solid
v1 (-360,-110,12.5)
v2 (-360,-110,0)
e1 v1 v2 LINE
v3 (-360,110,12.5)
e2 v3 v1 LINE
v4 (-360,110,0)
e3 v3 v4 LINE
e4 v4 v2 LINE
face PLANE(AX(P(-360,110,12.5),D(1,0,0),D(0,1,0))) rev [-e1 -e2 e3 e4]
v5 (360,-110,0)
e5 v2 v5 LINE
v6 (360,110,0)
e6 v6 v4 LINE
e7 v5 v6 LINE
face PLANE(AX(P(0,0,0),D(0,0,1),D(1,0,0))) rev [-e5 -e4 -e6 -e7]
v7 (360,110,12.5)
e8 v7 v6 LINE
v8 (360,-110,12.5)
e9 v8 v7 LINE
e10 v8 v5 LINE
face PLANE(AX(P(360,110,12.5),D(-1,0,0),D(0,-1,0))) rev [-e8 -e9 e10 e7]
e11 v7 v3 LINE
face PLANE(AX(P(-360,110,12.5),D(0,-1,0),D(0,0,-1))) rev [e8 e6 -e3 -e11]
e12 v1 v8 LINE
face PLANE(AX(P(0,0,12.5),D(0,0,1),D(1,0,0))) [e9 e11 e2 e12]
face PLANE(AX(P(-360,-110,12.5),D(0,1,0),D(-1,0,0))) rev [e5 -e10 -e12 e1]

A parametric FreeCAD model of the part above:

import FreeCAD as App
import Part
import Sketcher

V = App.Vector
Q = App.Units.Quantity


def add_polygon(sketch, points):
    """Adds a closed chain of lines whose ends are joined by coincident constraints."""
    first, n = sketch.GeometryCount, len(points)
    for a, b in zip(points, points[1:] + points[:1]):
        sketch.addGeometry(Part.LineSegment(App.Vector(*a, 0), App.Vector(*b, 0)), False)
    for i in range(n):
        sketch.addConstraint(Sketcher.Constraint("Coincident", first + i, 2, first + (i + 1) % n, 1))

doc = App.newDocument("Part")
body = doc.addObject("PartDesign::Body", "Body")

# Sketch on XY plane
sketch1 = body.newObject("Sketcher::SketchObject", "Sketch")
sketch1.AttachmentSupport = (doc.getObject("XY_Plane"), [""])
sketch1.MapMode = "FlatFace"
add_polygon(sketch1, [(-360, 110), (-360, -110), (360, -110), (360, 110)])  # lines 0-3
sketch1.addConstraint([
    Sketcher.Constraint("Vertical", 0),
    Sketcher.Constraint("Horizontal", 1),
    Sketcher.Constraint("Vertical", 2),
    Sketcher.Constraint("Horizontal", 3),
    Sketcher.Constraint("Symmetric", 0, 2, 2, 2, -1, 1),
    Sketcher.Constraint("DistanceX", 1, 1, 1, 2, Q("720 mm")),
    Sketcher.Constraint("DistanceY", 0, 2, 0, 1, Q("220 mm")),
])
pad1 = body.newObject("PartDesign::Pad", "Pad")
pad1.Profile = sketch1
pad1.Length = 12.5

doc.recompute()
